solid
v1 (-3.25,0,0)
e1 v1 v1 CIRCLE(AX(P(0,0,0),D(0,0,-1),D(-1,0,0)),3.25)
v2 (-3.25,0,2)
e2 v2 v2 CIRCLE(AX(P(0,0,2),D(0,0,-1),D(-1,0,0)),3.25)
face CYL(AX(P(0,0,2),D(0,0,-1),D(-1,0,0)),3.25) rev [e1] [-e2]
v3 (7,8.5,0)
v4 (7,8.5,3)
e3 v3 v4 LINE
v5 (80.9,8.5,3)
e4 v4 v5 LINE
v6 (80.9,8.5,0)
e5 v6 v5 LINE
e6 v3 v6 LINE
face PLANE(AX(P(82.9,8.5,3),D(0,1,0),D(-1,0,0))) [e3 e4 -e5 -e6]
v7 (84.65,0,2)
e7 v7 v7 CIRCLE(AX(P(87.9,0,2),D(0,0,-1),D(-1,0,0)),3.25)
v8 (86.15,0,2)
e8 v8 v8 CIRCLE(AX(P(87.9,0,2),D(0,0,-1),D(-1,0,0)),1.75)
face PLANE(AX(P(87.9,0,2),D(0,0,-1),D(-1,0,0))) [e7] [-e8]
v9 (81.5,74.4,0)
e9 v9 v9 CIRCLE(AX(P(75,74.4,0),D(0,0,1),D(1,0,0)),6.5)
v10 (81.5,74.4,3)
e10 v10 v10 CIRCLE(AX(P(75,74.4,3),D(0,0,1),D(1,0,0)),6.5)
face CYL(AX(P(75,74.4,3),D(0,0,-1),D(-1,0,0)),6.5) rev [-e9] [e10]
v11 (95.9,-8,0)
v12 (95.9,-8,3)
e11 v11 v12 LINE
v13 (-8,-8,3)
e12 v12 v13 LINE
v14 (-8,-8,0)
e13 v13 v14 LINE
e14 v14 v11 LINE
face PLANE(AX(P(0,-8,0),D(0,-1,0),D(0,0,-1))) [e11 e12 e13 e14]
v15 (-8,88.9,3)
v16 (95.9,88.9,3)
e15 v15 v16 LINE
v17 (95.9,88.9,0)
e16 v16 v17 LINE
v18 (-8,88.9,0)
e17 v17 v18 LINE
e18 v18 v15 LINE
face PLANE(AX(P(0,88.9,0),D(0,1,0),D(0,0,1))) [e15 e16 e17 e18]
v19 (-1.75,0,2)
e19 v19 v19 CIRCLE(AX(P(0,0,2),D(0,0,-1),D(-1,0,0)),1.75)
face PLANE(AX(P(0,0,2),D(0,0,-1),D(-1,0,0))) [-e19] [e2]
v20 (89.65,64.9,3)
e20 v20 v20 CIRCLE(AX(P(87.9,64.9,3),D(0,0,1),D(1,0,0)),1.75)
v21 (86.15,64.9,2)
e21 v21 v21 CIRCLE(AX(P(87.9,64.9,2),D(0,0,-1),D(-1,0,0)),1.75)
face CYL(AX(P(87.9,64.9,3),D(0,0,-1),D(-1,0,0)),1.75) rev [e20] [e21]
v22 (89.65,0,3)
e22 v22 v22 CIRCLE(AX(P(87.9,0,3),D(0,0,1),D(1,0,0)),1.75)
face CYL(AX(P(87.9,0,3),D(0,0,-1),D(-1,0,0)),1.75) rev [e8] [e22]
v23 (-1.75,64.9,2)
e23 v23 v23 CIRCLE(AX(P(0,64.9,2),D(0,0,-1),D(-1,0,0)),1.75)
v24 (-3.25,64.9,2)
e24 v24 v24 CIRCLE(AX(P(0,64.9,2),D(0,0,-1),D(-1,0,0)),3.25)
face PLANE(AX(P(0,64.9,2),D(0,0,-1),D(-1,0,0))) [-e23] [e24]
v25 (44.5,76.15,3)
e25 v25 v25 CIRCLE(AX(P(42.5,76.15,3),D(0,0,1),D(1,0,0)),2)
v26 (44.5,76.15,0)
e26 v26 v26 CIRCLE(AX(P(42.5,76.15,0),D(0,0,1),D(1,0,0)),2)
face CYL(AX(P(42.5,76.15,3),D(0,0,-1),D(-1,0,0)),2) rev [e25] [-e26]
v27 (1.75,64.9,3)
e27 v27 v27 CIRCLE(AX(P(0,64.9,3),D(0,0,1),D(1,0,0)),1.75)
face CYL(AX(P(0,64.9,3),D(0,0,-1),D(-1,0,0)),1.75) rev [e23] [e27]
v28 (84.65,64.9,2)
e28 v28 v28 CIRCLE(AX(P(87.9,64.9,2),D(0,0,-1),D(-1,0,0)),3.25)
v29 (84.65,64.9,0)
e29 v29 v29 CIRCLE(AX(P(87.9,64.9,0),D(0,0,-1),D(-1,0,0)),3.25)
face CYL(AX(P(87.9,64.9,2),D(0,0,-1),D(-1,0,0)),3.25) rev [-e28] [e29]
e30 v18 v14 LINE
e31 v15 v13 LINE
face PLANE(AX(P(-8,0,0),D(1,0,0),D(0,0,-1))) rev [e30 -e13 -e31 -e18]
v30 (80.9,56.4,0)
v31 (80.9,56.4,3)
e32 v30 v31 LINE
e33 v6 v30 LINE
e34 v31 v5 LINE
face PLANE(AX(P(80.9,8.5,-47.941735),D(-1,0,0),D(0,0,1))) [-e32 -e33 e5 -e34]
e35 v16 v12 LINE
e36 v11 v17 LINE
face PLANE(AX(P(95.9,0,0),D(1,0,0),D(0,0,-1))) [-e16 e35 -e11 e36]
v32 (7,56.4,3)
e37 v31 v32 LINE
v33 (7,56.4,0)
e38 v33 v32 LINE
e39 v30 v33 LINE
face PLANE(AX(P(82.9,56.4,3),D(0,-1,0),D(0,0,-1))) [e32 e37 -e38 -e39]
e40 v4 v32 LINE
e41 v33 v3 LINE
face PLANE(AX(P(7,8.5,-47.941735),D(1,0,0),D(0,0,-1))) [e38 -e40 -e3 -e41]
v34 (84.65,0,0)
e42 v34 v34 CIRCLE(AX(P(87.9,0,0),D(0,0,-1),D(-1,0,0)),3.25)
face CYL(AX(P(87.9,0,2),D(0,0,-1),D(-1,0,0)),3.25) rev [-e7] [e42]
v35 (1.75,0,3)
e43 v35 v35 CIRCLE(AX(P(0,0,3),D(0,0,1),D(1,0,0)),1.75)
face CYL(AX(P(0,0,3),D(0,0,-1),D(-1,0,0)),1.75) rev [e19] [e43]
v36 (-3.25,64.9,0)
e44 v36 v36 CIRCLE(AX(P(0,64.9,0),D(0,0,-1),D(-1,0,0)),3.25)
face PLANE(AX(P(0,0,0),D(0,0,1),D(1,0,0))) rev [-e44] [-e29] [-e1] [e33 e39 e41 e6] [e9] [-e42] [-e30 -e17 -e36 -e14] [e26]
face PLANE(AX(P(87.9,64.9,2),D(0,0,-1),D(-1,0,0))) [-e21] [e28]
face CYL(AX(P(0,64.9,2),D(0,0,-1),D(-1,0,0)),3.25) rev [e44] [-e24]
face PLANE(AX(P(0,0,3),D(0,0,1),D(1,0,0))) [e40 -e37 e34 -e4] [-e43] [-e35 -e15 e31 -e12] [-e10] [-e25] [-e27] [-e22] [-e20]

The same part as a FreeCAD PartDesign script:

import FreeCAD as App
import Part
import Sketcher
from FreeCAD import Vector
Q = App.Units.Quantity

doc = App.newDocument("Part")
body = doc.addObject("PartDesign::Body", "Body")

# Sketch on XY plane
sketch1 = body.newObject("Sketcher::SketchObject", "Sketch")
sketch1.AttachmentSupport = (doc.getObject("XY_Plane"), [""])
sketch1.MapMode = "FlatFace"
sketch1.addGeometry(Part.LineSegment(Vector(-5, 85.9, 0), Vector(-5, -5, 0)), False)
sketch1.addGeometry(Part.LineSegment(Vector(-5, -5, 0), Vector(92.9, -5, 0)), False)
sketch1.addGeometry(Part.LineSegment(Vector(92.9, -5, 0), Vector(92.9, 85.9, 0)), False)
sketch1.addGeometry(Part.LineSegment(Vector(92.9, 85.9, 0), Vector(-5, 85.9, 0)), False)
sketch1.addGeometry(Part.Circle(Vector(87.9, 0, 0), Vector(0, 0, 1), 1.75), False)
sketch1.addGeometry(Part.Circle(Vector(0, 0, 0), Vector(0, 0, 1), 1.75), False)
sketch1.addGeometry(Part.LineSegment(Vector(5, 8.5, 0), Vector(5, 56.4, 0)), False)
sketch1.addGeometry(Part.LineSegment(Vector(5, 56.4, 0), Vector(82.9, 56.4, 0)), False)
sketch1.addGeometry(Part.LineSegment(Vector(82.9, 56.4, 0), Vector(82.9, 8.5, 0)), False)
sketch1.addGeometry(Part.LineSegment(Vector(82.9, 8.5, 0), Vector(5, 8.5, 0)), False)
sketch1.addGeometry(Part.Circle(Vector(87.9, 64.9, 0), Vector(0, 0, 1), 1.75), False)
sketch1.addGeometry(Part.Circle(Vector(75, 74.4, 0), Vector(0, 0, 1), 6.5), False)
sketch1.addGeometry(Part.Circle(Vector(42.5, 76.15, 0), Vector(0, 0, 1), 2), False)
sketch1.addGeometry(Part.Circle(Vector(0, 64.9, 0), Vector(0, 0, 1), 1.75), False)
sketch1.addConstraint(Sketcher.Constraint("Coincident", 0, 2, 1, 1))
sketch1.addConstraint(Sketcher.Constraint("Coincident", 1, 2, 2, 1))
sketch1.addConstraint(Sketcher.Constraint("Coincident", 2, 2, 3, 1))
sketch1.addConstraint(Sketcher.Constraint("Coincident", 3, 2, 0, 1))
sketch1.addConstraint(Sketcher.Constraint("Coincident", 6, 2, 7, 1))
sketch1.addConstraint(Sketcher.Constraint("Coincident", 7, 2, 8, 1))
sketch1.addConstraint(Sketcher.Constraint("Coincident", 8, 2, 9, 1))
sketch1.addConstraint(Sketcher.Constraint("Coincident", 9, 2, 6, 1))
sketch1.addConstraint(Sketcher.Constraint("Vertical", 0))
sketch1.addConstraint(Sketcher.Constraint("Horizontal", 1))
sketch1.addConstraint(Sketcher.Constraint("Vertical", 2))
sketch1.addConstraint(Sketcher.Constraint("Horizontal", 3))
sketch1.addConstraint(Sketcher.Constraint("Vertical", 6))
sketch1.addConstraint(Sketcher.Constraint("Horizontal", 7))
sketch1.addConstraint(Sketcher.Constraint("Vertical", 8))
sketch1.addConstraint(Sketcher.Constraint("Horizontal", 9))
sketch1.addConstraint(Sketcher.Constraint("Coincident", 5, 3, -1, 1))
sketch1.addConstraint(Sketcher.Constraint("Equal", 4, 5))
sketch1.addConstraint(Sketcher.Constraint("Equal", 5, 10))
sketch1.addConstraint(Sketcher.Constraint("Equal", 10, 13))
sketch1.addConstraint(Sketcher.Constraint("PointOnObject", 4, 3, -1))
sketch1.addConstraint(Sketcher.Constraint("PointOnObject", 13, 3, -2))
sketch1.addConstraint(Sketcher.Constraint("Horizontal", 10, 3, 13, 3))
sketch1.addConstraint(Sketcher.Constraint("Vertical", 4, 3, 10, 3))
sketch1.addConstraint(Sketcher.Constraint("Diameter", 11, Q("13 mm")))
sketch1.addConstraint(Sketcher.Constraint("Diameter", 12, Q("4 mm")))
sketch1.addConstraint(Sketcher.Constraint("Diameter", 4, Q("3.5 mm")))
sketch1.addConstraint(Sketcher.Constraint("DistanceX", 1, 1, 1, 2, Q("97.9 mm")))
sketch1.addConstraint(Sketcher.Constraint("DistanceX", 7, 1, 7, 2, Q("77.9 mm")))
sketch1.addConstraint(Sketcher.Constraint("DistanceY", 0, 2, 0, 1, Q("90.9 mm")))
sketch1.addConstraint(Sketcher.Constraint("DistanceY", 6, 1, 6, 2, Q("47.9 mm")))
sketch1.addConstraint(Sketcher.Constraint("DistanceX", -1, 1, 11, 3, Q("75 mm")))
sketch1.addConstraint(Sketcher.Constraint("DistanceX", 0, 2, -1, 1, Q("5 mm")))
sketch1.addConstraint(Sketcher.Constraint("DistanceY", 0, 2, -1, 1, Q("5 mm")))
sketch1.addConstraint(Sketcher.Constraint("DistanceX", -1, 1, 6, 2, Q("5 mm")))
sketch1.addConstraint(Sketcher.Constraint("DistanceX", 4, 3, 1, 2, Q("5 mm")))
sketch1.addConstraint(Sketcher.Constraint("DistanceY", 10, 3, 2, 2, Q("21 mm")))
sketch1.addConstraint(Sketcher.Constraint("DistanceY", 7, 2, 11, 3, Q("18 mm")))
sketch1.addConstraint(Sketcher.Constraint("DistanceY", -1, 1, 11, 3, Q("74.4 mm")))
sketch1.addConstraint(Sketcher.Constraint("DistanceX", -1, 1, 12, 3, Q("42.5 mm")))
sketch1.addConstraint(Sketcher.Constraint("DistanceY", -1, 1, 12, 3, Q("76.15 mm")))
pad1 = body.newObject("PartDesign::Pad", "Pad")
pad1.Profile = sketch1
pad1.Length = 3

# Sketch on XY plane
sketch2 = body.newObject("Sketcher::SketchObject", "Sketch001")
sketch2.AttachmentSupport = (doc.getObject("XY_Plane"), [""])
sketch2.MapMode = "FlatFace"
sketch2.AttachmentOffset = App.Placement(Vector(0, 0, 3), App.Rotation())
sketch2.addGeometry(Part.LineSegment(Vector(80.9, 56.4, 0), Vector(80.9, 8.5, 0)), False)
sketch2.addGeometry(Part.LineSegment(Vector(80.9, 8.5, 0), Vector(82.9, 8.5, 0)), False)
sketch2.addGeometry(Part.LineSegment(Vector(82.9, 8.5, 0), Vector(82.9, 56.4, 0)), False)
sketch2.addGeometry(Part.LineSegment(Vector(82.9, 56.4, 0), Vector(80.9, 56.4, 0)), False)
sketch2.addGeometry(Part.LineSegment(Vector(5, 56.4, 0), Vector(5, 8.5, 0)), False)
sketch2.addGeometry(Part.LineSegment(Vector(5, 8.5, 0), Vector(7, 8.5, 0)), False)
sketch2.addGeometry(Part.LineSegment(Vector(7, 8.5, 0), Vector(7, 56.4, 0)), False)
sketch2.addGeometry(Part.LineSegment(Vector(7, 56.4, 0), Vector(5, 56.4, 0)), False)
sketch2.addConstraint(Sketcher.Constraint("Coincident", 0, 2, 1, 1))
sketch2.addConstraint(Sketcher.Constraint("Coincident", 1, 2, 2, 1))
sketch2.addConstraint(Sketcher.Constraint("Coincident", 2, 2, 3, 1))
sketch2.addConstraint(Sketcher.Constraint("Coincident", 3, 2, 0, 1))
sketch2.addConstraint(Sketcher.Constraint("Coincident", 4, 2, 5, 1))
sketch2.addConstraint(Sketcher.Constraint("Coincident", 5, 2, 6, 1))
sketch2.addConstraint(Sketcher.Constraint("Coincident", 6, 2, 7, 1))
sketch2.addConstraint(Sketcher.Constraint("Coincident", 7, 2, 4, 1))
sketch2.addConstraint(Sketcher.Constraint("Vertical", 0))
sketch2.addConstraint(Sketcher.Constraint("Horizontal", 1))
sketch2.addConstraint(Sketcher.Constraint("Vertical", 2))
sketch2.addConstraint(Sketcher.Constraint("Horizontal", 3))
sketch2.addConstraint(Sketcher.Constraint("Vertical", 4))
sketch2.addConstraint(Sketcher.Constraint("Horizontal", 5))
sketch2.addConstraint(Sketcher.Constraint("Vertical", 6))
sketch2.addConstraint(Sketcher.Constraint("Horizontal", 7))
sketch2.addConstraint(Sketcher.Constraint("Horizontal", 1, 2, 4, 2))
sketch2.addConstraint(Sketcher.Constraint("Horizontal", 3, 2, 6, 2))
sketch2.addConstraint(Sketcher.Constraint("Equal", 3, 5))
sketch2.addConstraint(Sketcher.Constraint("DistanceX", 1, 1, 1, 2, Q("2 mm")))
sketch2.addConstraint(Sketcher.Constraint("DistanceY", 0, 2, 0, 1, Q("47.9 mm")))
sketch2.addConstraint(Sketcher.Constraint("DistanceX", -1, 1, 4, 2, Q("5 mm")))
sketch2.addConstraint(Sketcher.Constraint("DistanceX", -1, 1, 0, 2, Q("80.9 mm")))
sketch2.addConstraint(Sketcher.Constraint("DistanceY", -1, 1, 0, 2, Q("8.5 mm")))
pad2 = body.newObject("PartDesign::Pad", "Pad001")
pad2.Profile = sketch2
pad2.Length = 3
pad2.Reversed = True

# Sketch on YZ plane
sketch3 = body.newObject("Sketcher::SketchObject", "Sketch002")
sketch3.AttachmentSupport = (doc.getObject("YZ_Plane"), [""])
sketch3.MapMode = "FlatFace"
sketch3.AttachmentOffset = App.Placement(Vector(0, 0, 92.9), App.Rotation())
sketch3.addGeometry(Part.LineSegment(Vector(87.73868, 15, 0), Vector(-5, 15, 0)), False)
sketch3.addGeometry(Part.LineSegment(Vector(-5, 15, 0), Vector(-5, 0, 0)), False)
sketch3.addGeometry(Part.LineSegment(Vector(-5, 0, 0), Vector(87.73868, 0, 0)), False)
sketch3.addGeometry(Part.LineSegment(Vector(87.73868, 0, 0), Vector(87.73868, 15, 0)), False)
sketch3.addConstraint(Sketcher.Constraint("Coincident", 0, 2, 1, 1))
sketch3.addConstraint(Sketcher.Constraint("Coincident", 1, 2, 2, 1))
sketch3.addConstraint(Sketcher.Constraint("Coincident", 2, 2, 3, 1))
sketch3.addConstraint(Sketcher.Constraint("Coincident", 3, 2, 0, 1))
sketch3.addConstraint(Sketcher.Constraint("Horizontal", 0))
sketch3.addConstraint(Sketcher.Constraint("Vertical", 1))
sketch3.addConstraint(Sketcher.Constraint("Horizontal", 2))
sketch3.addConstraint(Sketcher.Constraint("Vertical", 3))
sketch3.addConstraint(Sketcher.Constraint("PointOnObject", 1, 2, -1))
sketch3.addConstraint(Sketcher.Constraint("DistanceY", 1, 2, 1, 1, Q("15 mm")))
sketch3.addConstraint(Sketcher.Constraint("DistanceX", 0, 2, -1, 1, Q("5 mm")))
sketch3.addConstraint(Sketcher.Constraint("DistanceX", 0, 2, 0, 1, Q("92.73868 mm")))
pad3 = body.newObject("PartDesign::Pad", "Pad002")
pad3.Profile = sketch3
pad3.Length = 3

# Sketch on YZ plane
sketch4 = body.newObject("Sketcher::SketchObject", "Sketch003")
sketch4.AttachmentSupport = (doc.getObject("YZ_Plane"), [""])
sketch4.MapMode = "FlatFace"
sketch4.AttachmentOffset = App.Placement(Vector(0, 0, -5), App.Rotation())
sketch4.addGeometry(Part.LineSegment(Vector(87.013866, 0, 0), Vector(-5, 0, 0)), False)
sketch4.addGeometry(Part.LineSegment(Vector(-5, 0, 0), Vector(-5, 15, 0)), False)
sketch4.addGeometry(Part.LineSegment(Vector(-5, 15, 0), Vector(87.013866, 15, 0)), False)
sketch4.addGeometry(Part.LineSegment(Vector(87.013866, 15, 0), Vector(87.013866, 0, 0)), False)
sketch4.addConstraint(Sketcher.Constraint("Coincident", 0, 2, 1, 1))
sketch4.addConstraint(Sketcher.Constraint("Coincident", 1, 2, 2, 1))
sketch4.addConstraint(Sketcher.Constraint("Coincident", 2, 2, 3, 1))
sketch4.addConstraint(Sketcher.Constraint("Coincident", 3, 2, 0, 1))
sketch4.addConstraint(Sketcher.Constraint("Horizontal", 0))
sketch4.addConstraint(Sketcher.Constraint("Vertical", 1))
sketch4.addConstraint(Sketcher.Constraint("Horizontal", 2))
sketch4.addConstraint(Sketcher.Constraint("Vertical", 3))
sketch4.addConstraint(Sketcher.Constraint("PointOnObject", 0, 2, -1))
sketch4.addConstraint(Sketcher.Constraint("DistanceY", 1, 1, 1, 2, Q("15 mm")))
sketch4.addConstraint(Sketcher.Constraint("DistanceX", 0, 2, -1, 1, Q("5 mm")))
sketch4.addConstraint(Sketcher.Constraint("DistanceX", 0, 2, 0, 1, Q("92.013866 mm")))
pad4 = body.newObject("PartDesign::Pad", "Pad003")
pad4.Profile = sketch4
pad4.Length = 3
pad4.Reversed = True

# Sketch on XZ plane
sketch5 = body.newObject("Sketcher::SketchObject", "Sketch004")
sketch5.AttachmentSupport = (doc.getObject("XZ_Plane"), [""])
sketch5.MapMode = "FlatFace"
sketch5.AttachmentOffset = App.Placement(Vector(0, 0, 5), App.Rotation())
sketch5.addGeometry(Part.LineSegment(Vector(95.9, 0, 0), Vector(95.9, 15, 0)), False)
sketch5.addGeometry(Part.LineSegment(Vector(95.9, 15, 0), Vector(-8, 15, 0)), False)
sketch5.addGeometry(Part.LineSegment(Vector(-8, 15, 0), Vector(-8, 0, 0)), False)
sketch5.addGeometry(Part.LineSegment(Vector(-8, 0, 0), Vector(95.9, 0, 0)), False)
sketch5.addConstraint(Sketcher.Constraint("Coincident", 0, 2, 1, 1))
sketch5.addConstraint(Sketcher.Constraint("Coincident", 1, 2, 2, 1))
sketch5.addConstraint(Sketcher.Constraint("Coincident", 2, 2, 3, 1))
sketch5.addConstraint(Sketcher.Constraint("Coincident", 3, 2, 0, 1))
sketch5.addConstraint(Sketcher.Constraint("Vertical", 0))
sketch5.addConstraint(Sketcher.Constraint("Horizontal", 1))
sketch5.addConstraint(Sketcher.Constraint("Vertical", 2))
sketch5.addConstraint(Sketcher.Constraint("Horizontal", 3))
sketch5.addConstraint(Sketcher.Constraint("PointOnObject", 2, 2, -1))
sketch5.addConstraint(Sketcher.Constraint("DistanceY", 0, 1, 0, 2, Q("15 mm")))
sketch5.addConstraint(Sketcher.Constraint("DistanceX", 1, 2, 1, 1, Q("103.9 mm")))
sketch5.addConstraint(Sketcher.Constraint("DistanceX", 1, 2, -1, 1, Q("8 mm")))
pad5 = body.newObject("PartDesign::Pad", "Pad004")
pad5.Profile = sketch5
pad5.Length = 3

# Sketch on XY plane
sketch6 = body.newObject("Sketcher::SketchObject", "Sketch005")
sketch6.AttachmentSupport = (doc.getObject("XY_Plane"), [""])
sketch6.MapMode = "FlatFace"
sketch6.addGeometry(Part.Circle(Vector(0, 0, 0), Vector(0, 0, 1), 3.25), False)
sketch6.addGeometry(Part.Circle(Vector(87.9, 0, 0), Vector(0, 0, 1), 3.25), False)
sketch6.addGeometry(Part.Circle(Vector(87.9, 64.9, 0), Vector(0, 0, 1), 3.25), False)
sketch6.addGeometry(Part.Circle(Vector(0, 64.9, 0), Vector(0, 0, 1), 3.25), False)
sketch6.addConstraint(Sketcher.Constraint("Coincident", 0, 3, -1, 1))
sketch6.addConstraint(Sketcher.Constraint("Equal", 0, 1))
sketch6.addConstraint(Sketcher.Constraint("Equal", 1, 2))
sketch6.addConstraint(Sketcher.Constraint("Equal", 2, 3))
sketch6.addConstraint(Sketcher.Constraint("PointOnObject", 1, 3, -1))
sketch6.addConstraint(Sketcher.Constraint("PointOnObject", 3, 3, -2))
sketch6.addConstraint(Sketcher.Constraint("Horizontal", 2, 3, 3, 3))
sketch6.addConstraint(Sketcher.Constraint("Vertical", 1, 3, 2, 3))
sketch6.addConstraint(Sketcher.Constraint("Diameter", 0, Q("6.5 mm")))
sketch6.addConstraint(Sketcher.Constraint("DistanceX", -1, 1, 1, 3, Q("87.9 mm")))
sketch6.addConstraint(Sketcher.Constraint("DistanceY", -1, 1, 2, 3, Q("64.9 mm")))
pocket1 = body.newObject("PartDesign::Pocket", "Pocket")
pocket1.Profile = sketch6
pocket1.Length = 2
pocket1.Reversed = True

# Sketch on XZ plane
sketch7 = body.newObject("Sketcher::SketchObject", "Sketch006")
sketch7.AttachmentSupport = (doc.getObject("XZ_Plane"), [""])
sketch7.MapMode = "FlatFace"
sketch7.AttachmentOffset = App.Placement(Vector(0, 0, -85.9), App.Rotation())
sketch7.addGeometry(Part.LineSegment(Vector(-8, 0, 0), Vector(-8, 15, 0)), False)
sketch7.addGeometry(Part.LineSegment(Vector(-8, 15, 0), Vector(95.9, 15, 0)), False)
sketch7.addGeometry(Part.LineSegment(Vector(95.9, 15, 0), Vector(95.9, 0, 0)), False)
sketch7.addGeometry(Part.LineSegment(Vector(95.9, 0, 0), Vector(-8, 0, 0)), False)
sketch7.addConstraint(Sketcher.Constraint("Coincident", 0, 2, 1, 1))
sketch7.addConstraint(Sketcher.Constraint("Coincident", 1, 2, 2, 1))
sketch7.addConstraint(Sketcher.Constraint("Coincident", 2, 2, 3, 1))
sketch7.addConstraint(Sketcher.Constraint("Coincident", 3, 2, 0, 1))
sketch7.addConstraint(Sketcher.Constraint("Vertical", 0))
sketch7.addConstraint(Sketcher.Constraint("Horizontal", 1))
sketch7.addConstraint(Sketcher.Constraint("Vertical", 2))
sketch7.addConstraint(Sketcher.Constraint("Horizontal", 3))
sketch7.addConstraint(Sketcher.Constraint("PointOnObject", 2, 2, -1))
sketch7.addConstraint(Sketcher.Constraint("DistanceY", 0, 1, 0, 2, Q("15 mm")))
sketch7.addConstraint(Sketcher.Constraint("DistanceX", 1, 1, 1, 2, Q("103.9 mm")))
sketch7.addConstraint(Sketcher.Constraint("DistanceX", 0, 2, -1, 1, Q("8 mm")))
pad6 = body.newObject("PartDesign::Pad", "Pad005")
pad6.Profile = sketch7
pad6.Length = 3
pad6.Reversed = True

# Sketch on XY plane
sketch8 = body.newObject("Sketcher::SketchObject", "Sketch007")
sketch8.AttachmentSupport = (doc.getObject("XY_Plane"), [""])
sketch8.MapMode = "FlatFace"
sketch8.AttachmentOffset = App.Placement(Vector(0, 0, 3), App.Rotation())
sketch8.addGeometry(Part.Circle(Vector(0, 64.9, 0), Vector(0, 0, 1), 3.75), False)
sketch8.addGeometry(Part.Circle(Vector(0, 64.9, 0), Vector(0, 0, 1), 1.75), False)
sketch8.addGeometry(Part.Circle(Vector(0, 0, 0), Vector(0, 0, 1), 3.75), False)
sketch8.addGeometry(Part.Circle(Vector(0, 0, 0), Vector(0, 0, 1), 1.75), False)
sketch8.addGeometry(Part.Circle(Vector(87.9, 64.9, 0), Vector(0, 0, 1), 3.75), False)
sketch8.addGeometry(Part.Circle(Vector(87.9, 64.9, 0), Vector(0, 0, 1), 1.75), False)
sketch8.addGeometry(Part.Circle(Vector(87.9, 0, 0), Vector(0, 0, 1), 3.75), False)
sketch8.addGeometry(Part.Circle(Vector(87.9, 0, 0), Vector(0, 0, 1), 1.75), False)
sketch8.addConstraint(Sketcher.Constraint("Coincident", 2, 3, -1, 1))
sketch8.addConstraint(Sketcher.Constraint("Coincident", 3, 3, -1, 1))
sketch8.addConstraint(Sketcher.Constraint("Coincident", 1, 3, 0, 3))
sketch8.addConstraint(Sketcher.Constraint("Coincident", 5, 3, 4, 3))
sketch8.addConstraint(Sketcher.Constraint("Coincident", 7, 3, 6, 3))
sketch8.addConstraint(Sketcher.Constraint("Equal", 0, 2))
sketch8.addConstraint(Sketcher.Constraint("Equal", 1, 3))
sketch8.addConstraint(Sketcher.Constraint("Equal", 2, 4))
sketch8.addConstraint(Sketcher.Constraint("Equal", 3, 5))
sketch8.addConstraint(Sketcher.Constraint("Equal", 4, 6))
sketch8.addConstraint(Sketcher.Constraint("Equal", 5, 7))
sketch8.addConstraint(Sketcher.Constraint("PointOnObject", 0, 3, -2))
sketch8.addConstraint(Sketcher.Constraint("PointOnObject", 6, 3, -1))
sketch8.addConstraint(Sketcher.Constraint("Horizontal", 1, 3, 4, 3))
sketch8.addConstraint(Sketcher.Constraint("Vertical", 5, 3, 6, 3))
sketch8.addConstraint(Sketcher.Constraint("Diameter", 0, Q("7.5 mm")))
sketch8.addConstraint(Sketcher.Constraint("Diameter", 1, Q("3.5 mm")))
sketch8.addConstraint(Sketcher.Constraint("DistanceY", -1, 1, 0, 3, Q("64.9 mm")))
sketch8.addConstraint(Sketcher.Constraint("DistanceX", -1, 1, 4, 3, Q("87.9 mm")))
pad7 = body.newObject("PartDesign::Pad", "Pad006")
pad7.Profile = sketch8
pad7.Length = 8

# Sketch on YZ plane
sketch9 = body.newObject("Sketcher::SketchObject", "Sketch008")
sketch9.AttachmentSupport = (doc.getObject("YZ_Plane"), [""])
sketch9.MapMode = "FlatFace"
sketch9.AttachmentOffset = App.Placement(Vector(0, 0, 95.9), App.Rotation())
sketch9.addGeometry(Part.LineSegment(Vector(65.046853, 15, 0), Vector(42.046853, 15, 0)), False)
sketch9.addGeometry(Part.LineSegment(Vector(42.046853, 15, 0), Vector(42.046853, 12, 0)), False)
sketch9.addGeometry(Part.LineSegment(Vector(42.046853, 12, 0), Vector(65.046853, 12, 0)), False)
sketch9.addGeometry(Part.LineSegment(Vector(65.046853, 12, 0), Vector(65.046853, 15, 0)), False)
sketch9.addConstraint(Sketcher.Constraint("Coincident", 0, 2, 1, 1))
sketch9.addConstraint(Sketcher.Constraint("Coincident", 1, 2, 2, 1))
sketch9.addConstraint(Sketcher.Constraint("Coincident", 2, 2, 3, 1))
sketch9.addConstraint(Sketcher.Constraint("Coincident", 3, 2, 0, 1))
sketch9.addConstraint(Sketcher.Constraint("Horizontal", 0))
sketch9.addConstraint(Sketcher.Constraint("Vertical", 1))
sketch9.addConstraint(Sketcher.Constraint("Horizontal", 2))
sketch9.addConstraint(Sketcher.Constraint("Vertical", 3))
sketch9.addConstraint(Sketcher.Constraint("DistanceX", 0, 2, 0, 1, Q("23 mm")))
sketch9.addConstraint(Sketcher.Constraint("DistanceY", 1, 2, 1, 1, Q("3 mm")))
sketch9.addConstraint(Sketcher.Constraint("DistanceY", -1, 1, 0, 2, Q("15 mm")))
sketch9.addConstraint(Sketcher.Constraint("DistanceX", -1, 1, 0, 2, Q("42.046853 mm")))
pocket2 = body.newObject("PartDesign::Pocket", "Pocket001")
pocket2.Profile = sketch9
pocket2.Length = 8

# Sketch on XY plane
sketch10 = body.newObject("Sketcher::SketchObject", "Sketch009")
sketch10.AttachmentSupport = (doc.getObject("XY_Plane"), [""])
sketch10.MapMode = "FlatFace"
sketch10.AttachmentOffset = App.Placement(Vector(0, 0, 15), App.Rotation())
sketch10.addGeometry(Part.LineSegment(Vector(-45.755384, 123.553364, 0), Vector(-45.755384, -50.18348, 0)), False)
sketch10.addGeometry(Part.LineSegment(Vector(-45.755384, -50.18348, 0), Vector(235.800207, -50.18348, 0)), False)
sketch10.addGeometry(Part.LineSegment(Vector(235.800207, -50.18348, 0), Vector(235.800207, 123.553364, 0)), False)
sketch10.addGeometry(Part.LineSegment(Vector(235.800207, 123.553364, 0), Vector(-45.755384, 123.553364, 0)), False)
sketch10.addConstraint(Sketcher.Constraint("Coincident", 0, 2, 1, 1))
sketch10.addConstraint(Sketcher.Constraint("Coincident", 1, 2, 2, 1))
sketch10.addConstraint(Sketcher.Constraint("Coincident", 2, 2, 3, 1))
sketch10.addConstraint(Sketcher.Constraint("Coincident", 3, 2, 0, 1))
sketch10.addConstraint(Sketcher.Constraint("Vertical", 0))
sketch10.addConstraint(Sketcher.Constraint("Horizontal", 1))
sketch10.addConstraint(Sketcher.Constraint("Vertical", 2))
sketch10.addConstraint(Sketcher.Constraint("Horizontal", 3))
sketch10.addConstraint(Sketcher.Constraint("DistanceX", 1, 1, 1, 2, Q("281.555591 mm")))
sketch10.addConstraint(Sketcher.Constraint("DistanceY", 0, 2, 0, 1, Q("173.736844 mm")))
sketch10.addConstraint(Sketcher.Constraint("DistanceY", 0, 2, -1, 1, Q("50.18348 mm")))
sketch10.addConstraint(Sketcher.Constraint("DistanceX", 0, 2, -1, 1, Q("45.755384 mm")))
pocket3 = body.newObject("PartDesign::Pocket", "Pocket002")
pocket3.Profile = sketch10
pocket3.Length = 12

doc.recompute()
